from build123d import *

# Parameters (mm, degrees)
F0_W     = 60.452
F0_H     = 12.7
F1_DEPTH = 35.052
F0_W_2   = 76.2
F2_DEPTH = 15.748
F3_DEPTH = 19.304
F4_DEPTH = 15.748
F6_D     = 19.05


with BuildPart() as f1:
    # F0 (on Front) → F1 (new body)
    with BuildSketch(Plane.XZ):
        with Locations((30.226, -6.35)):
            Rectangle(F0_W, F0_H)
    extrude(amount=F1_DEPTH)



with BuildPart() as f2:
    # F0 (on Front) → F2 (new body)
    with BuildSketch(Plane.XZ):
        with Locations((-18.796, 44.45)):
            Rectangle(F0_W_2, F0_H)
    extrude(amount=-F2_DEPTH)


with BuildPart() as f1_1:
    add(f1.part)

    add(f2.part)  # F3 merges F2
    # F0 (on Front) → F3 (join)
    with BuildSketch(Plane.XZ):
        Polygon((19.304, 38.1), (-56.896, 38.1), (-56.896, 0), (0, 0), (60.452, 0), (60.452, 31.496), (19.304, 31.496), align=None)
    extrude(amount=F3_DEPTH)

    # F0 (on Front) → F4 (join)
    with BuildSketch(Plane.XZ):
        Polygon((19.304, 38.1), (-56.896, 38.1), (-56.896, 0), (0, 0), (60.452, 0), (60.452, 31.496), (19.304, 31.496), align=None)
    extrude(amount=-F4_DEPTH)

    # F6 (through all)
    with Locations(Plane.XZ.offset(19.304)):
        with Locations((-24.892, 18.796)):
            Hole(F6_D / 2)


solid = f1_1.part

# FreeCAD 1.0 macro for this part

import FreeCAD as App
import Part
import Sketcher
from FreeCAD import Vector
Q = App.Units.Quantity

doc = App.newDocument("Part")
body = doc.addObject("PartDesign::Body", "Body")

# Sketch on XZ plane
sketch1 = body.newObject("Sketcher::SketchObject", "Sketch")
sketch1.AttachmentSupport = (doc.getObject("XZ_Plane"), [""])
sketch1.MapMode = "FlatFace"
sketch1.addGeometry(Part.LineSegment(Vector(0, 0, 0), Vector(0, -13, 0)), False)
sketch1.addGeometry(Part.LineSegment(Vector(0, -13, 0), Vector(60, -13, 0)), False)
sketch1.addGeometry(Part.LineSegment(Vector(60, -13, 0), Vector(60, 0, 0)), False)
sketch1.addGeometry(Part.LineSegment(Vector(60, 0, 0), Vector(0, 0, 0)), False)
sketch1.addConstraint(Sketcher.Constraint("Coincident", 0, 2, 1, 1))
sketch1.addConstraint(Sketcher.Constraint("Coincident", 1, 2, 2, 1))
sketch1.addConstraint(Sketcher.Constraint("Coincident", 2, 2, 3, 1))
sketch1.addConstraint(Sketcher.Constraint("Coincident", 3, 2, 0, 1))
sketch1.addConstraint(Sketcher.Constraint("Vertical", 0))
sketch1.addConstraint(Sketcher.Constraint("Horizontal", 1))
sketch1.addConstraint(Sketcher.Constraint("Vertical", 2))
sketch1.addConstraint(Sketcher.Constraint("Horizontal", 3))
sketch1.addConstraint(Sketcher.Constraint("Coincident", 3, 2, -1, 1))
sketch1.addConstraint(Sketcher.Constraint("DistanceY", 0, 2, 0, 1, Q("0.5 in")))
sketch1.addConstraint(Sketcher.Constraint("DistanceX", 1, 1, 1, 2, Q("2.38 in")))
pad1 = body.newObject("PartDesign::Pad", "Pad")
pad1.Profile = sketch1
pad1.Length = Q("1.38 in")
body2 = doc.addObject("PartDesign::Body", "Body001")

# Sketch on XZ plane
sketch2 = body2.newObject("Sketcher::SketchObject", "Sketch001")
sketch2.AttachmentSupport = (doc.getObject("XZ_Plane001"), [""])
sketch2.MapMode = "FlatFace"
sketch2.addGeometry(Part.LineSegment(Vector(-57, 51, 0), Vector(-57, 38, 0)), False)
sketch2.addGeometry(Part.LineSegment(Vector(-57, 38, 0), Vector(19, 38, 0)), False)
sketch2.addGeometry(Part.LineSegment(Vector(19, 38, 0), Vector(19, 51, 0)), False)
sketch2.addGeometry(Part.LineSegment(Vector(19, 51, 0), Vector(-57, 51, 0)), False)
sketch2.addConstraint(Sketcher.Constraint("Coincident", 0, 2, 1, 1))
sketch2.addConstraint(Sketcher.Constraint("Coincident", 1, 2, 2, 1))
sketch2.addConstraint(Sketcher.Constraint("Coincident", 2, 2, 3, 1))
sketch2.addConstraint(Sketcher.Constraint("Coincident", 3, 2, 0, 1))
sketch2.addConstraint(Sketcher.Constraint("Vertical", 0))
sketch2.addConstraint(Sketcher.Constraint("Horizontal", 1))
sketch2.addConstraint(Sketcher.Constraint("Vertical", 2))
sketch2.addConstraint(Sketcher.Constraint("Horizontal", 3))
sketch2.addConstraint(Sketcher.Constraint("DistanceX", 1, 1, 1, 2, Q("3 in")))
sketch2.addConstraint(Sketcher.Constraint("DistanceY", 0, 2, 0, 1, Q("0.5 in")))
sketch2.addConstraint(Sketcher.Constraint("DistanceY", -1, 1, 2, 2, Q("2 in")))
sketch2.addConstraint(Sketcher.Constraint("DistanceX", 0, 2, -1, 1, Q("2.24 in")))
pad2 = body2.newObject("PartDesign::Pad", "Pad001")
pad2.Profile = sketch2
pad2.Length = Q("0.62 in")
pad2.Reversed = True
body.AllowCompound = True
doc.recompute()

boolean = body.newObject("PartDesign::Boolean", "Boolean")
boolean.Type = "Fuse"
boolean.addObjects([body2])

# Sketch on XZ plane
sketch3 = body.newObject("Sketcher::SketchObject", "Sketch002")
sketch3.AttachmentSupport = (doc.getObject("XZ_Plane"), [""])
sketch3.MapMode = "FlatFace"
sketch3.addGeometry(Part.LineSegment(Vector(19, 38, 0), Vector(-57, 38, 0)), False)
sketch3.addGeometry(Part.LineSegment(Vector(-57, 38, 0), Vector(-57, 0, 0)), False)
sketch3.addGeometry(Part.LineSegment(Vector(-57, 0, 0), Vector(60, 0, 0)), False)
sketch3.addGeometry(Part.LineSegment(Vector(60, 0, 0), Vector(60, 31, 0)), False)
sketch3.addGeometry(Part.LineSegment(Vector(60, 31, 0), Vector(19, 31, 0)), False)
sketch3.addGeometry(Part.LineSegment(Vector(19, 31, 0), Vector(19, 38, 0)), False)
sketch3.addConstraint(Sketcher.Constraint("Coincident", 0, 2, 1, 1))
sketch3.addConstraint(Sketcher.Constraint("Coincident", 1, 2, 2, 1))
sketch3.addConstraint(Sketcher.Constraint("Coincident", 2, 2, 3, 1))
sketch3.addConstraint(Sketcher.Constraint("Coincident", 3, 2, 4, 1))
sketch3.addConstraint(Sketcher.Constraint("Coincident", 4, 2, 5, 1))
sketch3.addConstraint(Sketcher.Constraint("Coincident", 5, 2, 0, 1))
sketch3.addConstraint(Sketcher.Constraint("Horizontal", 0))
sketch3.addConstraint(Sketcher.Constraint("Vertical", 1))
sketch3.addConstraint(Sketcher.Constraint("Horizontal", 2))
sketch3.addConstraint(Sketcher.Constraint("Vertical", 3))
sketch3.addConstraint(Sketcher.Constraint("Horizontal", 4))
sketch3.addConstraint(Sketcher.Constraint("Vertical", 5))
sketch3.addConstraint(Sketcher.Constraint("PointOnObject", 1, 2, -1))
sketch3.addConstraint(Sketcher.Constraint("DistanceX", 0, 2, 0, 1, Q("3 in")))
sketch3.addConstraint(Sketcher.Constraint("DistanceY", 1, 2, 1, 1, Q("1.5 in")))
sketch3.addConstraint(Sketcher.Constraint("DistanceX", 2, 1, 2, 2, Q("4.62 in")))
sketch3.addConstraint(Sketcher.Constraint("DistanceY", 3, 1, 3, 2, Q("1.24 in")))
sketch3.addConstraint(Sketcher.Constraint("DistanceX", 0, 2, -1, 1, Q("2.24 in")))
pad3 = body.newObject("PartDesign::Pad", "Pad002")
pad3.Profile = sketch3
pad3.Length = Q("0.76 in")

# Sketch on XZ plane
sketch4 = body.newObject("Sketcher::SketchObject", "Sketch003")
sketch4.AttachmentSupport = (doc.getObject("XZ_Plane"), [""])
sketch4.MapMode = "FlatFace"
sketch4.addGeometry(Part.LineSegment(Vector(19, 38, 0), Vector(-57, 38, 0)), False)
sketch4.addGeometry(Part.LineSegment(Vector(-57, 38, 0), Vector(-57, 0, 0)), False)
sketch4.addGeometry(Part.LineSegment(Vector(-57, 0, 0), Vector(60, 0, 0)), False)
sketch4.addGeometry(Part.LineSegment(Vector(60, 0, 0), Vector(60, 31, 0)), False)
sketch4.addGeometry(Part.LineSegment(Vector(60, 31, 0), Vector(19, 31, 0)), False)
sketch4.addGeometry(Part.LineSegment(Vector(19, 31, 0), Vector(19, 38, 0)), False)
sketch4.addConstraint(Sketcher.Constraint("Coincident", 0, 2, 1, 1))
sketch4.addConstraint(Sketcher.Constraint("Coincident", 1, 2, 2, 1))
sketch4.addConstraint(Sketcher.Constraint("Coincident", 2, 2, 3, 1))
sketch4.addConstraint(Sketcher.Constraint("Coincident", 3, 2, 4, 1))
sketch4.addConstraint(Sketcher.Constraint("Coincident", 4, 2, 5, 1))
sketch4.addConstraint(Sketcher.Constraint("Coincident", 5, 2, 0, 1))
sketch4.addConstraint(Sketcher.Constraint("Horizontal", 0))
sketch4.addConstraint(Sketcher.Constraint("Vertical", 1))
sketch4.addConstraint(Sketcher.Constraint("Horizontal", 2))
sketch4.addConstraint(Sketcher.Constraint("Vertical", 3))
sketch4.addConstraint(Sketcher.Constraint("Horizontal", 4))
sketch4.addConstraint(Sketcher.Constraint("Vertical", 5))
sketch4.addConstraint(Sketcher.Constraint("PointOnObject", 1, 2, -1))
sketch4.addConstraint(Sketcher.Constraint("DistanceX", 0, 2, 0, 1, Q("3 in")))
sketch4.addConstraint(Sketcher.Constraint("DistanceY", 1, 2, 1, 1, Q("1.5 in")))
sketch4.addConstraint(Sketcher.Constraint("DistanceX", 2, 1, 2, 2, Q("4.62 in")))
sketch4.addConstraint(Sketcher.Constraint("DistanceY", 3, 1, 3, 2, Q("1.24 in")))
sketch4.addConstraint(Sketcher.Constraint("DistanceX", 0, 2, -1, 1, Q("2.24 in")))
pad4 = body.newObject("PartDesign::Pad", "Pad003")
pad4.Profile = sketch4
pad4.Length = Q("0.62 in")
pad4.Reversed = True

# Sketch on XZ plane
sketch5 = body.newObject("Sketcher::SketchObject", "Sketch004")
sketch5.AttachmentSupport = (doc.getObject("XZ_Plane"), [""])
sketch5.MapMode = "FlatFace"
sketch5.AttachmentOffset = App.Placement(Vector(0, 0, 0.76 * 25.4), App.Rotation())
sketch5.addGeometry(Part.Circle(Vector(-25, 19, 0), Vector(0, 0, 1), 10), False)
sketch5.addConstraint(Sketcher.Constraint("Diameter", 0, Q("0.75 in")))
sketch5.addConstraint(Sketcher.Constraint("DistanceX", 0, 3, -1, 1, Q("0.98 in")))
sketch5.addConstraint(Sketcher.Constraint("DistanceY", -1, 1, 0, 3, Q("0.74 in")))
doc.recompute()
hole = body.newObject("PartDesign::Hole", "Hole")
hole.Profile = sketch5
hole.ThreadType = "None"
hole.Diameter = Q("0.75 in")
hole.DepthType = "ThroughAll"

doc.recompute()
